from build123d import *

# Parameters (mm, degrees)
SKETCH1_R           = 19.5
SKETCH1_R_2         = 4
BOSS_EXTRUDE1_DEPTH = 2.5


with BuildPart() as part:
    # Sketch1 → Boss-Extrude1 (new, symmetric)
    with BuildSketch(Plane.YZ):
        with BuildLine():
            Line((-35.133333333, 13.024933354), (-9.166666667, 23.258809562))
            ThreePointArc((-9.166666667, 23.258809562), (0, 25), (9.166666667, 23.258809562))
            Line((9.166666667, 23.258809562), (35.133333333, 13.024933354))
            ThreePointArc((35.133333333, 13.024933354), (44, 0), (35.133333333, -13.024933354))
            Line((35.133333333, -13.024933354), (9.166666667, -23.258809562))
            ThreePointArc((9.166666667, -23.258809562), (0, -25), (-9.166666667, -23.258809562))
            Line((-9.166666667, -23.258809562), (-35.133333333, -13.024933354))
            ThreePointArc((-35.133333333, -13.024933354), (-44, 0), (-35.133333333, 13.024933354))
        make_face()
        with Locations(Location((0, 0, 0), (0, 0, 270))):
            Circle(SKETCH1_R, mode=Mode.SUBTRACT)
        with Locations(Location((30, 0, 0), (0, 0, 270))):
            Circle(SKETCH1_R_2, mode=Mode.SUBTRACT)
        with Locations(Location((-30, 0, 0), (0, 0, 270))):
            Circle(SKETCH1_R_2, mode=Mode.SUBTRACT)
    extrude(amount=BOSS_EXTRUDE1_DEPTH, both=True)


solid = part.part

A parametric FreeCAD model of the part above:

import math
import FreeCAD as App
import Part
import Sketcher

V = App.Vector
Q = App.Units.Quantity

doc = App.newDocument("Part")
body = doc.addObject("PartDesign::Body", "Body")

# Sketch on YZ plane
sketch1 = doc.addObject("Sketcher::SketchObject", "Sketch")
body.addObject(sketch1)
sketch1.AttachmentSupport = (doc.YZ_Plane, [""])
sketch1.MapMode = "FlatFace"
sketch1.addGeometry([
    Part.LineSegment(V(-9.166667, 23.25881, 0), V(-35.133333, 13.024933, 0)),  # 0
    Part.ArcOfCircle(Part.Circle(V(-30, 0, 0), V(0, 0, 1), 14), math.radians(111.510188), math.radians(248.489812)),  # 1
    Part.LineSegment(V(-35.133333, -13.024933, 0), V(-9.166667, -23.25881, 0)),  # 2
    Part.ArcOfCircle(Part.Circle(V(0, 0, 0), V(0, 0, 1), 25), math.radians(-111.510188), math.radians(-68.489812)),  # 3
    Part.LineSegment(V(9.166667, -23.25881, 0), V(35.133333, -13.024933, 0)),  # 4
    Part.ArcOfCircle(Part.Circle(V(30, 0, 0), V(0, 0, 1), 14), math.radians(-68.489812), math.radians(68.489812)),  # 5
    Part.LineSegment(V(35.133333, 13.024933, 0), V(9.166667, 23.25881, 0)),  # 6
    Part.ArcOfCircle(Part.Circle(V(0, 0, 0), V(0, 0, 1), 25), math.radians(68.489812), math.radians(111.510188)),  # 7
    Part.Circle(V(30, 0, 0), V(0, 0, 1), 4),  # 8
    Part.Circle(V(0, 0, 0), V(0, 0, 1), 19.5),  # 9
    Part.Circle(V(-30, 0, 0), V(0, 0, 1), 4),  # 10
], False)
sketch1.addConstraint([
    Sketcher.Constraint("Tangent", 0, 2, 1, 1),
    Sketcher.Constraint("Tangent", 1, 2, 2, 1),
    Sketcher.Constraint("Tangent", 2, 2, 3, 1),
    Sketcher.Constraint("Tangent", 3, 2, 4, 1),
    Sketcher.Constraint("Tangent", 4, 2, 5, 1),
    Sketcher.Constraint("Tangent", 5, 2, 6, 1),
    Sketcher.Constraint("Tangent", 6, 2, 7, 1),
    Sketcher.Constraint("Tangent", 7, 2, 0, 1),
    Sketcher.Constraint("Coincident", 3, 3, -1, 1),
    Sketcher.Constraint("Coincident", 7, 3, -1, 1),
    Sketcher.Constraint("Coincident", 9, 3, -1, 1),
    Sketcher.Constraint("Coincident", 8, 3, 5, 3),
    Sketcher.Constraint("Coincident", 10, 3, 1, 3),
    Sketcher.Constraint("Equal", 1, 5),
    Sketcher.Constraint("Equal", 3, 7),
    Sketcher.Constraint("Equal", 8, 10),
    Sketcher.Constraint("Symmetric", 1, 3, 5, 3, -1, 1),
    Sketcher.Constraint("PointOnObject", 1, 3, -1),
    Sketcher.Constraint("Diameter", 8, Q("8 mm")),
    Sketcher.Constraint("Diameter", 9, Q("39 mm")),
    Sketcher.Constraint("Radius", 1, Q("14 mm")),
    Sketcher.Constraint("Radius", 3, Q("25 mm")),
    Sketcher.Constraint("DistanceX", 1, 3, -1, 1, Q("30 mm")),
])
pad1 = doc.addObject("PartDesign::Pad", "Pad")
body.addObject(pad1)
pad1.Profile = sketch1
pad1.Length = 5
pad1.Midplane = True

doc.recompute()
